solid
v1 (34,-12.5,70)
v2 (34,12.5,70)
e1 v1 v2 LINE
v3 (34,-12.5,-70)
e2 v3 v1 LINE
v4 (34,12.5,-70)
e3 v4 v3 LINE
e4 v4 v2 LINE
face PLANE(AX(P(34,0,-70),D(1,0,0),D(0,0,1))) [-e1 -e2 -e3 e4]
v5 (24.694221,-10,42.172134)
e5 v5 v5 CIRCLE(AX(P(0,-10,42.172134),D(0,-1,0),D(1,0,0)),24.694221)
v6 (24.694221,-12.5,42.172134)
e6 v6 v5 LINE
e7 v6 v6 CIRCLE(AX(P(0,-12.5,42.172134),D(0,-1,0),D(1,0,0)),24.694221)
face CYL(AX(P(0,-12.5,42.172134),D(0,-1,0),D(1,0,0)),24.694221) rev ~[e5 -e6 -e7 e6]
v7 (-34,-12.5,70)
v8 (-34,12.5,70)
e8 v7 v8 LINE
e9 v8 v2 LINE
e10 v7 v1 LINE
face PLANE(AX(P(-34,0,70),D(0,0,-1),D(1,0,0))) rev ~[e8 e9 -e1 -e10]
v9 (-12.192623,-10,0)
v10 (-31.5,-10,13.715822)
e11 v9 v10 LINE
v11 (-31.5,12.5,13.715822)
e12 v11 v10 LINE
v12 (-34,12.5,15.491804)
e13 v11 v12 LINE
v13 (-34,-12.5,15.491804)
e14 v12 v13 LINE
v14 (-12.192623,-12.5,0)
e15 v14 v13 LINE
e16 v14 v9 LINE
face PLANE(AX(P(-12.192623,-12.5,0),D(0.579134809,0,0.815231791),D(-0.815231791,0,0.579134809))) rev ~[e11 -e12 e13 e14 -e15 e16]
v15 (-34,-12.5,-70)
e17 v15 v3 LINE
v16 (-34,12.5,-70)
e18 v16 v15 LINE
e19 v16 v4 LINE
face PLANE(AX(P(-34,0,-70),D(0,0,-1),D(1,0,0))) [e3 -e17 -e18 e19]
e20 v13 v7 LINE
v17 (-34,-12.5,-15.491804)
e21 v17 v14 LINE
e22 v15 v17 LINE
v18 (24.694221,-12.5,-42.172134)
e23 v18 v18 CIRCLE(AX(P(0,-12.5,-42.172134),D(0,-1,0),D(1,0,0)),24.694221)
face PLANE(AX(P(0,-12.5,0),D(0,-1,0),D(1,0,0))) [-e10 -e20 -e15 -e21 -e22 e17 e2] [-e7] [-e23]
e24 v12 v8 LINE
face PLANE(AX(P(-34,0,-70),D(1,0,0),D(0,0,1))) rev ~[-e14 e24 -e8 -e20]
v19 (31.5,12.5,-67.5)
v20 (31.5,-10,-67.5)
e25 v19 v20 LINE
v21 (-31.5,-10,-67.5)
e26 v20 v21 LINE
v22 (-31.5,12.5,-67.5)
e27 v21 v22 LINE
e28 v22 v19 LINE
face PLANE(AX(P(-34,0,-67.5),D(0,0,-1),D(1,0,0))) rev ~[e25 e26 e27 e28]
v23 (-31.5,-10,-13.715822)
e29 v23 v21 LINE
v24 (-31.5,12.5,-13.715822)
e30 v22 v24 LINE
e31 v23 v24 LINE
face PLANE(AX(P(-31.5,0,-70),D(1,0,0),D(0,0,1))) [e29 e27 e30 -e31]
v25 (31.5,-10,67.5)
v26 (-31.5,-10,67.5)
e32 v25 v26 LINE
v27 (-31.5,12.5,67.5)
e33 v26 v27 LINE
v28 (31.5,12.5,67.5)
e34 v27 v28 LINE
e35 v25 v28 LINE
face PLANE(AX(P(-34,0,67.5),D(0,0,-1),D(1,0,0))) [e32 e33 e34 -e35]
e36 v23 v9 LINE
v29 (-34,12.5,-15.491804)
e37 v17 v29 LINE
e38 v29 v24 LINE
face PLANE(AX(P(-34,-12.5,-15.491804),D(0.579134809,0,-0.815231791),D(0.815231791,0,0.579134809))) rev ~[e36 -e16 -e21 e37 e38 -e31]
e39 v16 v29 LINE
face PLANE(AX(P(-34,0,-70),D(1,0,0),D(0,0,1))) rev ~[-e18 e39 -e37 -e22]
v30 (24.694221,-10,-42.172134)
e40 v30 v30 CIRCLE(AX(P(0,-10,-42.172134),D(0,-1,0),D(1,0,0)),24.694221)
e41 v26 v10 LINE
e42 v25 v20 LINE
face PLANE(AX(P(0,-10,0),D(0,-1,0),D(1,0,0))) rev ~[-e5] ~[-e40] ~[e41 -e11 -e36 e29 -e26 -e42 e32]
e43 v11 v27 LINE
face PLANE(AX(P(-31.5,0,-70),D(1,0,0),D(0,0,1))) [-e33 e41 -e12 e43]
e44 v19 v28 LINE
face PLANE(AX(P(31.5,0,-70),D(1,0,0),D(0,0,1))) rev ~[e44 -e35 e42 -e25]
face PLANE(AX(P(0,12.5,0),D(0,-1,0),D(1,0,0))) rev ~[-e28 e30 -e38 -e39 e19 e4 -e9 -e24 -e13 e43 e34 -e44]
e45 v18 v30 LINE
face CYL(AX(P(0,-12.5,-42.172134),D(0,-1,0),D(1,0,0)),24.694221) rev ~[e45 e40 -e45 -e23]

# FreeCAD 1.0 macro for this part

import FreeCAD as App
import Part
import Sketcher
from FreeCAD import Vector
Q = App.Units.Quantity


def faces_at(feature, points):
    """Names of the faces that lie closest to the given points."""
    faces = feature.Shape.Faces
    near = lambda p: min(range(len(faces)), key=lambda i: faces[i].distToShape(Part.Vertex(*p))[0])
    return sorted({f"Face{near(p) + 1}" for p in points})


def add_polygon(sketch, points):
    """Adds a closed chain of lines whose ends are joined by coincident constraints."""
    first, n = sketch.GeometryCount, len(points)
    for a, b in zip(points, points[1:] + points[:1]):
        sketch.addGeometry(Part.LineSegment(App.Vector(*a, 0), App.Vector(*b, 0)), False)
    for i in range(n):
        sketch.addConstraint(Sketcher.Constraint("Coincident", first + i, 2, first + (i + 1) % n, 1))

doc = App.newDocument("Part")
params = doc.addObject("Spreadsheet::Sheet", "Params")
for row, (alias, value) in enumerate([
    ("sketch1_width", "68 mm"),
    ("sketch1_height", "140 mm"),
    ("pad1_length", "25 mm"),
    ("thickness_wall", "2.5 mm"),
    ("pocket1_length", "300 mm"),
], start=1):
    params.set(f"A{row}", alias)
    params.set(f"B{row}", "=" + value)
    params.setAlias(f"B{row}", alias)

body = doc.addObject("PartDesign::Body", "Body")

sketch1 = body.newObject("Sketcher::SketchObject", "Sketch")
sketch1.AttachmentSupport = (doc.getObject("XZ_Plane"), [""])
sketch1.MapMode = "FlatFace"
add_polygon(sketch1, [(-34, 70), (-34, -70), (34, -70), (34, 70)])
sketch1.addConstraint([
    Sketcher.Constraint("Vertical", 0),
    Sketcher.Constraint("Horizontal", 1),
    Sketcher.Constraint("Vertical", 2),
    Sketcher.Constraint("Horizontal", 3),
    Sketcher.Constraint("Symmetric", 0, 2, 2, 2, -1, 1),
    Sketcher.Constraint("DistanceX", 1, 1, 1, 2, Q("68 mm")),
    Sketcher.Constraint("DistanceY", 0, 2, 0, 1, Q("140 mm")),
])
sketch1.setExpression("Constraints[9]", "Params.sketch1_width")
sketch1.setExpression("Constraints[10]", "Params.sketch1_height")
pad1 = body.newObject("PartDesign::Pad", "Pad")
pad1.Profile = sketch1
pad1.setExpression("Length", "Params.pad1_length")
pad1.Midplane = True
doc.recompute()

thickness = body.newObject("PartDesign::Thickness", "Thickness")
thickness.Base = (pad1, faces_at(pad1, [(0, 12.5, 0)]))
thickness.setExpression("Value", "Params.thickness_wall")
thickness.Reversed = True
thickness.Join = "Arc"

sketch2 = body.newObject("Sketcher::SketchObject", "Sketch001")
sketch2.AttachmentSupport = (doc.getObject("XZ_Plane"), [""])
sketch2.MapMode = "FlatFace"
sketch2.AttachmentOffset = App.Placement(Vector(0, 0, 12.5), App.Rotation())
sketch2.addGeometry(Part.Circle(Vector(0, 42, 0), Vector(0, 0, 1), 25), False)
sketch2.addGeometry(Part.Circle(Vector(0, -42, 0), Vector(0, 0, 1), 25), False)
add_polygon(sketch2, [(-12, 0), (-34, 15), (-34, -15)])
sketch2.addConstraint([
    Sketcher.Constraint("Vertical", 3),
    Sketcher.Constraint("Equal", 0, 1),
    Sketcher.Constraint("Symmetric", 0, 3, 1, 3, -1, 1),
    Sketcher.Constraint("PointOnObject", 0, 3, -2),
    Sketcher.Constraint("PointOnObject", 4, 2, -1),
    Sketcher.Constraint("Equal", 2, 4),
    Sketcher.Constraint("DistanceX", 2, 2, -1, 1, Q("34 mm")),
    Sketcher.Constraint("Diameter", 0, Q("49.388442 mm")),
    Sketcher.Constraint("DistanceY", 3, 2, 3, 1, Q("30.983608 mm")),
    Sketcher.Constraint("Distance", 2, Q("26.74991 mm")),
    Sketcher.Constraint("DistanceY", 1, 3, 0, 3, Q("84.344268 mm")),
])
pocket1 = body.newObject("PartDesign::Pocket", "Pocket")
pocket1.Profile = sketch2
pocket1.setExpression("Length", "Params.pocket1_length")
pocket1.Midplane = True

doc.recompute()
